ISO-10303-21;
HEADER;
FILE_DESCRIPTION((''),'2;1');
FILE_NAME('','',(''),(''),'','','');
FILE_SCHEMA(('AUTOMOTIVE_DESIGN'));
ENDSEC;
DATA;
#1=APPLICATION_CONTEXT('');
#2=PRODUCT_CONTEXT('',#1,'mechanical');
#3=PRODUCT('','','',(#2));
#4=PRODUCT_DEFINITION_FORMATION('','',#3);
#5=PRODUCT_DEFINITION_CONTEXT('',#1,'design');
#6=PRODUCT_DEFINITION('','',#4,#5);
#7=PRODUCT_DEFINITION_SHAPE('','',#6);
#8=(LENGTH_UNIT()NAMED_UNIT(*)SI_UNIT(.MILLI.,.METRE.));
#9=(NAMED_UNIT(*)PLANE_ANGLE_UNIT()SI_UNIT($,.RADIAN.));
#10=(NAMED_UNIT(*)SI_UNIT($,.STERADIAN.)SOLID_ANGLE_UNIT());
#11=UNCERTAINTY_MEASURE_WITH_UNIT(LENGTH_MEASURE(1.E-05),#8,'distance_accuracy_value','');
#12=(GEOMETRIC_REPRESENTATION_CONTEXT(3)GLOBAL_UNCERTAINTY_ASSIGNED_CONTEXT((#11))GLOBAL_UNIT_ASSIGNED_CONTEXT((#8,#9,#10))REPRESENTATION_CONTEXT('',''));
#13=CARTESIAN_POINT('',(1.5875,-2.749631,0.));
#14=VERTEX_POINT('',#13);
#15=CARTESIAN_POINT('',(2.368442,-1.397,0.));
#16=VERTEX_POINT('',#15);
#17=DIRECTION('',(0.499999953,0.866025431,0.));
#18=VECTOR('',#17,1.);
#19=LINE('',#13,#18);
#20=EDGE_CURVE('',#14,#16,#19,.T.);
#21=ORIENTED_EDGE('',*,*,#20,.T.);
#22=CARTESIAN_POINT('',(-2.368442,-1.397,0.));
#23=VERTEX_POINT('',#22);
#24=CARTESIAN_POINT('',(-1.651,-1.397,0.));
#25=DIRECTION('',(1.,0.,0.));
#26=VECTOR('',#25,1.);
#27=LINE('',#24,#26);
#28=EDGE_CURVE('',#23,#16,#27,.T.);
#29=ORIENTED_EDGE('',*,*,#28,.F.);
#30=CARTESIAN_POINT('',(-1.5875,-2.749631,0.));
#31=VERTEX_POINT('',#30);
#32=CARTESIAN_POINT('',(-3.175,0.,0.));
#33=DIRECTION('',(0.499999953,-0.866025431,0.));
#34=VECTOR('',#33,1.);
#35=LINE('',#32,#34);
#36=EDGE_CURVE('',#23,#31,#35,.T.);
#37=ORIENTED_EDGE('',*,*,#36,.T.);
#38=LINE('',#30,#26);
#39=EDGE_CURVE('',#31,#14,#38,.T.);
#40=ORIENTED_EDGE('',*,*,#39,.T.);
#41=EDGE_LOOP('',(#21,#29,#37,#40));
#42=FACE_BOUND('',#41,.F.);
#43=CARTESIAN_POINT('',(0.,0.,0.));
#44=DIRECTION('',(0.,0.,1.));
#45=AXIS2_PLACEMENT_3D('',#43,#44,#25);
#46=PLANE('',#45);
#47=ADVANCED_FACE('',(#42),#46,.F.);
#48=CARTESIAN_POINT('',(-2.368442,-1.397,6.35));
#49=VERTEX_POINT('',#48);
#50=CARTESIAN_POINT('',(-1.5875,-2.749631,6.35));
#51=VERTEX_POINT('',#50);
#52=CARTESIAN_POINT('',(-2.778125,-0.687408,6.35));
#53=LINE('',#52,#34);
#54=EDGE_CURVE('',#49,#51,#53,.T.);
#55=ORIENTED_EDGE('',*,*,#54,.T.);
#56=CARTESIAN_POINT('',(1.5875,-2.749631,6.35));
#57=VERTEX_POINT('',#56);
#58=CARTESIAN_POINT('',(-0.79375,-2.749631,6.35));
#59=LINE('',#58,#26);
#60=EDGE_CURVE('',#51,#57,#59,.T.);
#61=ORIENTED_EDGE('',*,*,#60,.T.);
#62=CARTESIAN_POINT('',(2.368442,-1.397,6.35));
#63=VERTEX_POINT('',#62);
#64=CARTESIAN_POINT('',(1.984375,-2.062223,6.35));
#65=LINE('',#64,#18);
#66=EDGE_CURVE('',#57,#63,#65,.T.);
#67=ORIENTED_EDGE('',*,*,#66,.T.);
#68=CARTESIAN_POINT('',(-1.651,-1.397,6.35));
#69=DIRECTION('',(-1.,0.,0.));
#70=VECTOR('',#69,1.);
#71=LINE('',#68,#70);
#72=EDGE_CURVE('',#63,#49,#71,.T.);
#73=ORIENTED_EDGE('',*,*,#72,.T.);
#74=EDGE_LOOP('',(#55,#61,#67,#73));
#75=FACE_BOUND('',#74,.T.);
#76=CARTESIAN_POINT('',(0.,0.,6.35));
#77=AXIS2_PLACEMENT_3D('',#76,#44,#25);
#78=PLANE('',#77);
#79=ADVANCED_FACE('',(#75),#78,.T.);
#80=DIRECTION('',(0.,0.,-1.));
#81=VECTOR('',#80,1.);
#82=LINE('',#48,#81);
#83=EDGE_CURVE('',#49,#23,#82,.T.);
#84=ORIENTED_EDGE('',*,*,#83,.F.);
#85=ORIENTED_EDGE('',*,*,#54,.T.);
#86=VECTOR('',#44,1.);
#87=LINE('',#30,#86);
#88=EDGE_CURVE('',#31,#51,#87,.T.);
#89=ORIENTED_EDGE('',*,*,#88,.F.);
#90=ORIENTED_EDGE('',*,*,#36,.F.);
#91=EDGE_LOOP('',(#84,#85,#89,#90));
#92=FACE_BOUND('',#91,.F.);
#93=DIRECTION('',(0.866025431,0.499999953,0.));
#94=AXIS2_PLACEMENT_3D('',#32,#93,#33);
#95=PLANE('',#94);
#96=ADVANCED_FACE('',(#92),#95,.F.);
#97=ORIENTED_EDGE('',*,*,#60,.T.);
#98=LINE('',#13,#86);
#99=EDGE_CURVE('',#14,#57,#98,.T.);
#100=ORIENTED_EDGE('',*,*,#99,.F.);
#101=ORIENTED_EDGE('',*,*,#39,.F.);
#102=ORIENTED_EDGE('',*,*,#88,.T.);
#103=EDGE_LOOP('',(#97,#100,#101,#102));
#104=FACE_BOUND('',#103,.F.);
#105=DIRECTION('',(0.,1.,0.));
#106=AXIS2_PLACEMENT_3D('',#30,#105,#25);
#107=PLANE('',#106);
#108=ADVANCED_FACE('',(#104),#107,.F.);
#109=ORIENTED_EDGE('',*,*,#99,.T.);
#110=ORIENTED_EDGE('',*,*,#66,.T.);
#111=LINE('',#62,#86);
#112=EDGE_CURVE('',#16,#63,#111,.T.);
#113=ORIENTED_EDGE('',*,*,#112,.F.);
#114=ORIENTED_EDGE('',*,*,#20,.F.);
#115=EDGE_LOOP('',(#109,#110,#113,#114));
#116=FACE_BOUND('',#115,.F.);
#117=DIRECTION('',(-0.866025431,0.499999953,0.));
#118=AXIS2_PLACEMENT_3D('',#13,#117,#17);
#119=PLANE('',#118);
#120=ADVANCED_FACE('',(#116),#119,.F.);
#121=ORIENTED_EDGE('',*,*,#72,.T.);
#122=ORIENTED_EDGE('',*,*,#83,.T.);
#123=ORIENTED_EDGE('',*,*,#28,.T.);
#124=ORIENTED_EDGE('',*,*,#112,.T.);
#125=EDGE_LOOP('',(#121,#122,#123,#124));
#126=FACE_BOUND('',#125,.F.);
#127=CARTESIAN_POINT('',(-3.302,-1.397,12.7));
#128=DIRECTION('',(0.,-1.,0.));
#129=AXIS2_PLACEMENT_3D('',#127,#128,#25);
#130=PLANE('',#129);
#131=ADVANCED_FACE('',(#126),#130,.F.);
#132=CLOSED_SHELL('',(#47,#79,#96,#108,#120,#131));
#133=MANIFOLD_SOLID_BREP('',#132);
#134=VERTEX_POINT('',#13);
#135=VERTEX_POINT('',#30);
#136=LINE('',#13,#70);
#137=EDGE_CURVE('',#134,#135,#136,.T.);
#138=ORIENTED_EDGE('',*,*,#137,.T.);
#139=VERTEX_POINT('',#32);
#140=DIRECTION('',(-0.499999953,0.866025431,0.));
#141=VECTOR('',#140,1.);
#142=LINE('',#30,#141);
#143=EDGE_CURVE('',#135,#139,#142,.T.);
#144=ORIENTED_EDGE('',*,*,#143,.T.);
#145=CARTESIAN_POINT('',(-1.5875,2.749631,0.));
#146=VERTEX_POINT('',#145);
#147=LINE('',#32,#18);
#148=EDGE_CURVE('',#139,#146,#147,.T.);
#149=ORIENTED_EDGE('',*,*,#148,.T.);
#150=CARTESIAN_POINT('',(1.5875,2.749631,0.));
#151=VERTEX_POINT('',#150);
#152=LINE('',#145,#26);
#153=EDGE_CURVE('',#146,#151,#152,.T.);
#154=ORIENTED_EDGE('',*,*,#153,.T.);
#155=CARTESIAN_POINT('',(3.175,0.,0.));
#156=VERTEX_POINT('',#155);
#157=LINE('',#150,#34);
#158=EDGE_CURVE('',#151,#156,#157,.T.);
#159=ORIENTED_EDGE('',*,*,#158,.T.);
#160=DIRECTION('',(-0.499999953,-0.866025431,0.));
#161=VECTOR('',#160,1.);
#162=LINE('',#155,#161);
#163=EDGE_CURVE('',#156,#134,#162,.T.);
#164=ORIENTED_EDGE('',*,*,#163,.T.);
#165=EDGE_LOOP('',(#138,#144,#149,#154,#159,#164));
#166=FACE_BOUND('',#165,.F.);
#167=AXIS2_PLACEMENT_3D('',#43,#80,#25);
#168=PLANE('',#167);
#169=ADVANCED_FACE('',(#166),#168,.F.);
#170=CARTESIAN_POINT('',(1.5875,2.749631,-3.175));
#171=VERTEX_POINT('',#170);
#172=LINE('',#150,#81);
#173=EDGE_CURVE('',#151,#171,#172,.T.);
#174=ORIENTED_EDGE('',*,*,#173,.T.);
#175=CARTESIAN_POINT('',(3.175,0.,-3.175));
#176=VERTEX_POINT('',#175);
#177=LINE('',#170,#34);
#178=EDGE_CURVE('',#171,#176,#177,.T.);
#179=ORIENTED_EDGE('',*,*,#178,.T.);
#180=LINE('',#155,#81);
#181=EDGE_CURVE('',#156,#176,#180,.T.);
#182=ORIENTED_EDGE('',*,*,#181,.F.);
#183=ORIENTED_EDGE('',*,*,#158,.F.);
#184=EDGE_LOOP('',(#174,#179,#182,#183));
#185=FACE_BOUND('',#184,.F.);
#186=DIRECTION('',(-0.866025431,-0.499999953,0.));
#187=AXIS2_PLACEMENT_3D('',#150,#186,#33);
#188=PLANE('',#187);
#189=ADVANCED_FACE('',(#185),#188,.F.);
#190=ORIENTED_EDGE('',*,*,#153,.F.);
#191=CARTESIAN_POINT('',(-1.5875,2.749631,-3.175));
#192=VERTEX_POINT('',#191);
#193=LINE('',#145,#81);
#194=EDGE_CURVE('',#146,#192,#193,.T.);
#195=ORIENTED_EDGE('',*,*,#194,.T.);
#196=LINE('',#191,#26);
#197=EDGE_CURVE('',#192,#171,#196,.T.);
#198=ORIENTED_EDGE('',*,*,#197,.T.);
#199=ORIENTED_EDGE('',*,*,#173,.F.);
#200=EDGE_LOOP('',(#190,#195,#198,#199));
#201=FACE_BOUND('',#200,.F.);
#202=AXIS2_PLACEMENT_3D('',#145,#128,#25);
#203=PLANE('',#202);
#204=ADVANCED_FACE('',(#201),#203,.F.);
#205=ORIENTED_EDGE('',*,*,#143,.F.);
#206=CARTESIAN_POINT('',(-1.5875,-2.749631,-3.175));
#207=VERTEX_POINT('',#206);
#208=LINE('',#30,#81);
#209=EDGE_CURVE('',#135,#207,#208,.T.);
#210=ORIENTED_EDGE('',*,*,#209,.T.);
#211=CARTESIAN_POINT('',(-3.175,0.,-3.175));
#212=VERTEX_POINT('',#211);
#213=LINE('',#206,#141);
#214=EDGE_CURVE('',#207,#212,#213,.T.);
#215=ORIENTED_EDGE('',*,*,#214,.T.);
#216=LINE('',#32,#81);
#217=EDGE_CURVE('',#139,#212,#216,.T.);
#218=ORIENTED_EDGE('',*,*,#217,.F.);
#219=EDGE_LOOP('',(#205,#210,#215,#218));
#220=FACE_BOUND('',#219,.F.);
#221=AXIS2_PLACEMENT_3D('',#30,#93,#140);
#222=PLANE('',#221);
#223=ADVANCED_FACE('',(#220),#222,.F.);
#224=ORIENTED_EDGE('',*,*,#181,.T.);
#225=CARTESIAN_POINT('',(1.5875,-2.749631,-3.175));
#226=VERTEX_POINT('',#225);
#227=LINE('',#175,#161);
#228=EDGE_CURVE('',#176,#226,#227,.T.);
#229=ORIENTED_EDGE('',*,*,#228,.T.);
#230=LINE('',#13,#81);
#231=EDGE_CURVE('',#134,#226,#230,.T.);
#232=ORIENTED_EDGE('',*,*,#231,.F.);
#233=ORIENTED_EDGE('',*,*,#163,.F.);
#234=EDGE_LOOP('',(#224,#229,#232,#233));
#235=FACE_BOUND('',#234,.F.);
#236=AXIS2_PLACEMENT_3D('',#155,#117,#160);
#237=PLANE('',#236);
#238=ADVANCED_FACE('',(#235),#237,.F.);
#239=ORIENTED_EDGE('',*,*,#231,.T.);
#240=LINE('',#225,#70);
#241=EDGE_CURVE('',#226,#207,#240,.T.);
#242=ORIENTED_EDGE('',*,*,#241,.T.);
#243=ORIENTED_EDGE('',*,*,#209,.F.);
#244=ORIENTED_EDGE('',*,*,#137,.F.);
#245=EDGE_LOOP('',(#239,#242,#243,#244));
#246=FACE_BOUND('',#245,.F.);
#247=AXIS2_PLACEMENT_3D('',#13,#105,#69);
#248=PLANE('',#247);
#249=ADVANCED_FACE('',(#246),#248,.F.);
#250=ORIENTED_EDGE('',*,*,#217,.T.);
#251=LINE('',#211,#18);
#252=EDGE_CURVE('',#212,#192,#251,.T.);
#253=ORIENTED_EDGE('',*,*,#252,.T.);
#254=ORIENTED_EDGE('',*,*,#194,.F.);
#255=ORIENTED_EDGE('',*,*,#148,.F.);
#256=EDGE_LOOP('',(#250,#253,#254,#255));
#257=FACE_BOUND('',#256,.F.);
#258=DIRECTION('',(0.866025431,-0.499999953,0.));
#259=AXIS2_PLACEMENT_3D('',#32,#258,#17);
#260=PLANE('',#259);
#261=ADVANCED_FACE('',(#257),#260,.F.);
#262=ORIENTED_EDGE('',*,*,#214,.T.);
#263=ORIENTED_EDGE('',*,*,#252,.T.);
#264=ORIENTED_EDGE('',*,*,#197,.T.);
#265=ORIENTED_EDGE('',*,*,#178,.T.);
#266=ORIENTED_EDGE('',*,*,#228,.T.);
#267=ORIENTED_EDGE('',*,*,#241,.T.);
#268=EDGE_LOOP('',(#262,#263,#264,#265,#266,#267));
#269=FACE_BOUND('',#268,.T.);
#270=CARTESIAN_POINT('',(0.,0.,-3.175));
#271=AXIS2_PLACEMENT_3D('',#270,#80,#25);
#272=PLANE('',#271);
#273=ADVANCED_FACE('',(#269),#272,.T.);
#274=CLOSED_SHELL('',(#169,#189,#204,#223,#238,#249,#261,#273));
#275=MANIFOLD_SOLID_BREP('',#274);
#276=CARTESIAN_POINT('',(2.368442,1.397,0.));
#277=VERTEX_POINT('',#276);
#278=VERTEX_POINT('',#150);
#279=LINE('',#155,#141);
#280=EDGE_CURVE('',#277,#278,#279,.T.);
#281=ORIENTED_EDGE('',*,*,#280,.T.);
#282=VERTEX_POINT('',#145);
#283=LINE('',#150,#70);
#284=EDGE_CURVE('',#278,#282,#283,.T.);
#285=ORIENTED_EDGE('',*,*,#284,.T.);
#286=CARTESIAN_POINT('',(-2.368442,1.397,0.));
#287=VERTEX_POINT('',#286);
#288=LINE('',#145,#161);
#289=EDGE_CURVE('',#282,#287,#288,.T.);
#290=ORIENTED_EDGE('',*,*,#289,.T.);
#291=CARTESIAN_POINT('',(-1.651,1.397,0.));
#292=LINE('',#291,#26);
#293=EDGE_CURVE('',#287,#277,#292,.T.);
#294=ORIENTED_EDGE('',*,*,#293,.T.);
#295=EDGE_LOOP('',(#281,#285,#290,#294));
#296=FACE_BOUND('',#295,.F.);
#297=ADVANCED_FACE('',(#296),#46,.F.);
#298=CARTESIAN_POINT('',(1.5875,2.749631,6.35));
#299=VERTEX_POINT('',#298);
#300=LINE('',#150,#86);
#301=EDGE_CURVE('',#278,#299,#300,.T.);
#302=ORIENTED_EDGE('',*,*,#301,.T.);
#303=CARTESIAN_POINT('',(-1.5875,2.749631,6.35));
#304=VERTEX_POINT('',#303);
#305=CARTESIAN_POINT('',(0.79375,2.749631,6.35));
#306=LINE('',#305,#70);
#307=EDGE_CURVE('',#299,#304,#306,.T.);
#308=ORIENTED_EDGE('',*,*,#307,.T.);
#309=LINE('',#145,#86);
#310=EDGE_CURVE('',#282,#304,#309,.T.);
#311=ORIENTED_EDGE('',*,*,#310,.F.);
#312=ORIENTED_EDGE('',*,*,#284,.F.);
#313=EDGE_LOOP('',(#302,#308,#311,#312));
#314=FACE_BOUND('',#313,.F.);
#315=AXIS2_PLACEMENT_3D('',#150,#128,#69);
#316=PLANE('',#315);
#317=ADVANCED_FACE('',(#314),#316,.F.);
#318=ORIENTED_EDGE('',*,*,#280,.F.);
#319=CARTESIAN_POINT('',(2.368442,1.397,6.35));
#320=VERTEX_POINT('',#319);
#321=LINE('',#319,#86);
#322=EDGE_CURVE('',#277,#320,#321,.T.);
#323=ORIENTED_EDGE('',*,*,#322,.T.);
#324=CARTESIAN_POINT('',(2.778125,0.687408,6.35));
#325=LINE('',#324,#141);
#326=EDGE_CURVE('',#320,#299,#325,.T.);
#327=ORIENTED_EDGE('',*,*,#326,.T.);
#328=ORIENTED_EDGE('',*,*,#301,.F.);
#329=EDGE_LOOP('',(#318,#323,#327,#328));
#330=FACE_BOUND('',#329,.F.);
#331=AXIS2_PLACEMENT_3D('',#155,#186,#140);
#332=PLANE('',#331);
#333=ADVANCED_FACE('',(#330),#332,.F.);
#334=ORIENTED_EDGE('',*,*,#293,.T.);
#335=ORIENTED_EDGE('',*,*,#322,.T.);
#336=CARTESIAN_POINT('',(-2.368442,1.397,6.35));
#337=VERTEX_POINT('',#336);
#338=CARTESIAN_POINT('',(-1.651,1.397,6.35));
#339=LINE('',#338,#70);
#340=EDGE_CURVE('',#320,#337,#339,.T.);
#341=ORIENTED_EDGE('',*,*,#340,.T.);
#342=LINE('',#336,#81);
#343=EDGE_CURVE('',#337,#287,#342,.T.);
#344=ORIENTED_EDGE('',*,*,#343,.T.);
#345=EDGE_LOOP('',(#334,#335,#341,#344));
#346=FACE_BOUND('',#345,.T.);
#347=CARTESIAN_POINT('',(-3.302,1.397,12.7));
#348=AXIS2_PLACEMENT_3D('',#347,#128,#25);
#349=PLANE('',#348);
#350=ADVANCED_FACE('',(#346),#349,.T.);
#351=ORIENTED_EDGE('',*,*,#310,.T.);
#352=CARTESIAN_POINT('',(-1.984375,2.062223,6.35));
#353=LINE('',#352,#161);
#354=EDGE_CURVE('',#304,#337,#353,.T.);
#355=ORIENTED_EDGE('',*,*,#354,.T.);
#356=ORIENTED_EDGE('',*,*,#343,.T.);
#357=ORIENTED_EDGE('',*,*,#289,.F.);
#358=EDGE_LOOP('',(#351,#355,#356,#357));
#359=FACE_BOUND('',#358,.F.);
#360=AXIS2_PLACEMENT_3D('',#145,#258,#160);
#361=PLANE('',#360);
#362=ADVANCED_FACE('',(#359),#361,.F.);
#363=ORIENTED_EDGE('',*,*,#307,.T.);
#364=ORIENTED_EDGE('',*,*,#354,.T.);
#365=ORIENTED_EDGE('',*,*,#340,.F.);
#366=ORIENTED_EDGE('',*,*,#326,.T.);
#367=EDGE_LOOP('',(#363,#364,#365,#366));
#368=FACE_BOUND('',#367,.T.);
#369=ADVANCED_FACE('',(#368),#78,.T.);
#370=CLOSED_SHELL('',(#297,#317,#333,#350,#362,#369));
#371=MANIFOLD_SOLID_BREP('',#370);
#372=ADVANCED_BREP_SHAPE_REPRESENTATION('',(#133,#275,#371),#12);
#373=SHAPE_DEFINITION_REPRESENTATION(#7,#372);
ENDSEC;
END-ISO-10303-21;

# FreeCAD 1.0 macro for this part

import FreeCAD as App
import Part
import Sketcher
Q = App.Units.Quantity


def add_polygon(sketch, points):
    """Adds a closed chain of lines whose ends are joined by coincident constraints."""
    first, n = sketch.GeometryCount, len(points)
    for a, b in zip(points, points[1:] + points[:1]):
        sketch.addGeometry(Part.LineSegment(App.Vector(*a, 0), App.Vector(*b, 0)), False)
    for i in range(n):
        sketch.addConstraint(Sketcher.Constraint("Coincident", first + i, 2, first + (i + 1) % n, 1))

doc = App.newDocument("Part")
body = doc.addObject("PartDesign::Body", "Body")
body.AllowCompound = True

# Sketch on XY plane
sketch1 = body.newObject("Sketcher::SketchObject", "Sketch")
sketch1.AttachmentSupport = (doc.getObject("XY_Plane"), [""])
sketch1.MapMode = "FlatFace"
add_polygon(sketch1, [(-1.6, -2.7), (1.6, -2.7), (3.2, 0), (1.6, 2.7), (-1.6, 2.7), (-3.2, 0)])  # lines 0-5
sketch1.addConstraint(Sketcher.Constraint("Horizontal", 0))
sketch1.addConstraint(Sketcher.Constraint("Horizontal", 3))
sketch1.addConstraint(Sketcher.Constraint("Symmetric", 0, 2, 3, 2, -1, 1))
sketch1.addConstraint(Sketcher.Constraint("Symmetric", 1, 2, 4, 2, -1, 1))
sketch1.addConstraint(Sketcher.Constraint("PointOnObject", 1, 2, -1))
sketch1.addConstraint(Sketcher.Constraint("Parallel", 2, 5))
sketch1.addConstraint(Sketcher.Constraint("Vertical", 0, 2, 2, 2))
sketch1.addConstraint(Sketcher.Constraint("Angle", 1, Q("60.000003 deg")))
sketch1.addConstraint(Sketcher.Constraint("DistanceX", 0, 1, 0, 2, Q("0.125 in")))
sketch1.addConstraint(Sketcher.Constraint("DistanceX", 4, 2, 1, 2, Q("0.25 in")))
pad1 = body.newObject("PartDesign::Pad", "Pad")
pad1.Profile = sketch1
pad1.Length = Q("0.5 in")

# Sketch on XY plane
sketch2 = body.newObject("Sketcher::SketchObject", "Sketch001")
sketch2.AttachmentSupport = (doc.getObject("XY_Plane"), [""])
sketch2.MapMode = "FlatFace"
sketch2.AttachmentOffset = App.Placement(App.Vector(0, 0, 0.5 * 25.4), App.Rotation())
add_polygon(sketch2, [(-3.3, 1.4), (-3.3, -1.4), (3.3, -1.4), (3.3, 1.4)])  # lines 0-3
sketch2.addConstraint(Sketcher.Constraint("Vertical", 0))
sketch2.addConstraint(Sketcher.Constraint("Horizontal", 1))
sketch2.addConstraint(Sketcher.Constraint("Vertical", 2))
sketch2.addConstraint(Sketcher.Constraint("Horizontal", 3))
sketch2.addConstraint(Sketcher.Constraint("Symmetric", 0, 2, 2, 2, -1, 1))
sketch2.addConstraint(Sketcher.Constraint("DistanceX", 1, 1, 1, 2, Q("0.26 in")))
sketch2.addConstraint(Sketcher.Constraint("DistanceY", 0, 2, 0, 1, Q("0.11 in")))
pocket1 = body.newObject("PartDesign::Pocket", "Pocket")
pocket1.Profile = sketch2
pocket1.Type = "ThroughAll"

# Sketch on XY plane
sketch3 = body.newObject("Sketcher::SketchObject", "Sketch002")
sketch3.AttachmentSupport = (doc.getObject("XY_Plane"), [""])
sketch3.MapMode = "FlatFace"
sketch3.AttachmentOffset = App.Placement(App.Vector(0, 0, 0.5 * 25.4), App.Rotation())
sketch3.addGeometry(Part.Circle(App.Vector(0, 0, 0), App.Vector(0, 0, 1), 3.4), False)
sketch3.addConstraint(Sketcher.Constraint("Coincident", 0, 3, -1, 1))
sketch3.addConstraint(Sketcher.Constraint("Diameter", 0, Q("6.868272 mm")))
pocket2 = body.newObject("PartDesign::Pocket", "Pocket001")
pocket2.Profile = sketch3
pocket2.Length = Q("0.25 in")
body2 = doc.addObject("PartDesign::Body", "Body001")

# Sketch on XY plane
sketch4 = body2.newObject("Sketcher::SketchObject", "Sketch003")
sketch4.AttachmentSupport = (doc.getObject("XY_Plane001"), [""])
sketch4.MapMode = "FlatFace"
add_polygon(sketch4, [(1.6, -2.7), (-1.6, -2.7), (-3.2, 0), (-1.6, 2.7), (1.6, 2.7), (3.2, 0)])  # lines 0-5
sketch4.addConstraint(Sketcher.Constraint("Horizontal", 0))
sketch4.addConstraint(Sketcher.Constraint("Horizontal", 3))
sketch4.addConstraint(Sketcher.Constraint("Symmetric", 0, 2, 3, 2, -1, 1))
sketch4.addConstraint(Sketcher.Constraint("Symmetric", 1, 2, 4, 2, -1, 1))
sketch4.addConstraint(Sketcher.Constraint("PointOnObject", 1, 2, -1))
sketch4.addConstraint(Sketcher.Constraint("Parallel", 2, 5))
sketch4.addConstraint(Sketcher.Constraint("Vertical", 0, 2, 2, 2))
sketch4.addConstraint(Sketcher.Constraint("Angle", 1, Q("119.999997 deg")))
sketch4.addConstraint(Sketcher.Constraint("DistanceX", 0, 2, 0, 1, Q("0.125 in")))
sketch4.addConstraint(Sketcher.Constraint("DistanceX", 1, 2, 4, 2, Q("0.25 in")))
pad2 = body2.newObject("PartDesign::Pad", "Pad001")
pad2.Profile = sketch4
pad2.Length = Q("0.125 in")
pad2.Reversed = True

doc.recompute()
